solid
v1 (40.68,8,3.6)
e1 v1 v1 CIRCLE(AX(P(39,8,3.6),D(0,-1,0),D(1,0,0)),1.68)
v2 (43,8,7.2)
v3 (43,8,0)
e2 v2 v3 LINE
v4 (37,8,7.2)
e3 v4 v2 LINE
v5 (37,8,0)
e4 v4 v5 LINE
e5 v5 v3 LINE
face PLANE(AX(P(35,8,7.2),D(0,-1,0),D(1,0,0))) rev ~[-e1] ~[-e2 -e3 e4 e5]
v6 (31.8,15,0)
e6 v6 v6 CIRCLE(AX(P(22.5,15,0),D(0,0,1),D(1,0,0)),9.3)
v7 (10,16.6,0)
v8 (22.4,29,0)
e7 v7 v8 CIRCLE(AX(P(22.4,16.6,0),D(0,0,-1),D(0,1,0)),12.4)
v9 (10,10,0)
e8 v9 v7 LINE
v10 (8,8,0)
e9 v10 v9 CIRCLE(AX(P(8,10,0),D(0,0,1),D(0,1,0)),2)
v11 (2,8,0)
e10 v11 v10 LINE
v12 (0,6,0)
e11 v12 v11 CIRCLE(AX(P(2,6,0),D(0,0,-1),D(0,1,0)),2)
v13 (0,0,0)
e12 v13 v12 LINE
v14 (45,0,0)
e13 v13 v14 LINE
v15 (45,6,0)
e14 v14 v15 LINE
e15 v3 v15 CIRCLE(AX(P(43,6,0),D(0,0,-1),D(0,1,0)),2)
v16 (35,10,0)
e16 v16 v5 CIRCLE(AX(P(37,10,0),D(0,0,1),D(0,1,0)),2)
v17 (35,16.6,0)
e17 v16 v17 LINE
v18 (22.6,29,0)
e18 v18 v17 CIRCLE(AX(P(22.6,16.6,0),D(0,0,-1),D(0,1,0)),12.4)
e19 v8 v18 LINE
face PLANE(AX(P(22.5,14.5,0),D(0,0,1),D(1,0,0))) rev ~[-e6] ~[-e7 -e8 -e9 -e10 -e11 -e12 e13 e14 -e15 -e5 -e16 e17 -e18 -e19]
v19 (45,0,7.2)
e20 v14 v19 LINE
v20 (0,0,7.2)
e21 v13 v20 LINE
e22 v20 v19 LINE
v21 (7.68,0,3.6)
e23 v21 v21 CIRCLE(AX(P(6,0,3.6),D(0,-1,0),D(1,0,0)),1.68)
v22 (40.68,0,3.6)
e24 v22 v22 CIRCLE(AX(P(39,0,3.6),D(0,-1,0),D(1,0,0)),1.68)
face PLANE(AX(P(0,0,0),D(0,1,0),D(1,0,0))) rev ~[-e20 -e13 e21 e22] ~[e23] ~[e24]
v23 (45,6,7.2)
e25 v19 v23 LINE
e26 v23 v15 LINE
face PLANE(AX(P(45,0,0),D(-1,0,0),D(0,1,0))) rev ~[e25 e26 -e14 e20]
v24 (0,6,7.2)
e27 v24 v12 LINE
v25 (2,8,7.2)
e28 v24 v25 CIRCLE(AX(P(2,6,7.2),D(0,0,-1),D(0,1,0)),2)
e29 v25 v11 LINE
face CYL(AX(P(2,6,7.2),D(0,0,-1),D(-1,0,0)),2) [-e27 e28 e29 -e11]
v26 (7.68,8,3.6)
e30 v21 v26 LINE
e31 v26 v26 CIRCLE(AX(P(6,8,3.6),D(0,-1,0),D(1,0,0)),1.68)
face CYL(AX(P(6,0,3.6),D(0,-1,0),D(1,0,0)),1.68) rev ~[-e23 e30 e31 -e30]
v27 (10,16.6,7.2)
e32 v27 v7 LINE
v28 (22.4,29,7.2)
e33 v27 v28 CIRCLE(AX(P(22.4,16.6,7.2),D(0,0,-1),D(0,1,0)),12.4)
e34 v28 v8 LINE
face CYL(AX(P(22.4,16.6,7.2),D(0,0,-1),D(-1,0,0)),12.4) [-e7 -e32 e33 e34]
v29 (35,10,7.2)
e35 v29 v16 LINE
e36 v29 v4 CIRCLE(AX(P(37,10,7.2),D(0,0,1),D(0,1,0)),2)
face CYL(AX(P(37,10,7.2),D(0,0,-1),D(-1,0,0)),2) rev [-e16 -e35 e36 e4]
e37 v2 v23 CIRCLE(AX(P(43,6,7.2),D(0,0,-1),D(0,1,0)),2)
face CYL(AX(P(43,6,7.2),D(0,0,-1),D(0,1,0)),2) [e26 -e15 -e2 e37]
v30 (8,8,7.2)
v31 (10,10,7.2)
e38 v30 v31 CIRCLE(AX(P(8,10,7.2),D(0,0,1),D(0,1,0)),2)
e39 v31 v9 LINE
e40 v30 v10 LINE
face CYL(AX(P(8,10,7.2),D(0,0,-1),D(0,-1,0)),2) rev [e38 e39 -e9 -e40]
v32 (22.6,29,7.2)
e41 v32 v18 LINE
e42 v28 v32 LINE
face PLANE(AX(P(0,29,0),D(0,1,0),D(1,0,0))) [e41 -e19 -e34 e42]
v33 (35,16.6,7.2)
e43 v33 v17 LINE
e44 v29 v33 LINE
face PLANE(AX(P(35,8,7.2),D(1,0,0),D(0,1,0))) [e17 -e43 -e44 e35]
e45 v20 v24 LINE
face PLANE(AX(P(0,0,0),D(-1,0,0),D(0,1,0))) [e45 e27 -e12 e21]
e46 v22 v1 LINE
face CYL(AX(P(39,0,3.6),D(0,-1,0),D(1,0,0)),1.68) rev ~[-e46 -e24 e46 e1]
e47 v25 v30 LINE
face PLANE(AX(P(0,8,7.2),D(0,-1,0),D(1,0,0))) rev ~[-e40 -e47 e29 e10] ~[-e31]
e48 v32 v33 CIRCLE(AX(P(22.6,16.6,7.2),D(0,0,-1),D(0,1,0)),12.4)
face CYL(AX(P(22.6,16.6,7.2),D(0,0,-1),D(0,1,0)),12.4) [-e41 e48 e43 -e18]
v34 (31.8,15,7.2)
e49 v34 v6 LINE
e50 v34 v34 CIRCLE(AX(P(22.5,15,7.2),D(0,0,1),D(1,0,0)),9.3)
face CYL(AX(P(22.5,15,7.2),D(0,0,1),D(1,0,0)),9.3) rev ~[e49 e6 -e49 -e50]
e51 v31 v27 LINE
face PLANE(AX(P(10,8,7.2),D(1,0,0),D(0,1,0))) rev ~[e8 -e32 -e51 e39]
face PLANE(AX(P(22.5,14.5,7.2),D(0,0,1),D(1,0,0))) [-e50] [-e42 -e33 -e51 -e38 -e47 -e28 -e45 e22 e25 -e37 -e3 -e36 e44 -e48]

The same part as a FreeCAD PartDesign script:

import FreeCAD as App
import Part
import Sketcher

V = App.Vector


def edges_at(feature, points):
    """Names of the edges that pass closest to the given points."""
    edges = feature.Shape.Edges
    near = lambda p: min(range(len(edges)), key=lambda i: edges[i].distToShape(Part.Vertex(*p))[0])
    return sorted({f"Edge{near(p) + 1}" for p in points})

doc = App.newDocument("Part")
body = doc.addObject("PartDesign::Body", "Body")

# Sketch on XY plane
sketch1 = body.newObject("Sketcher::SketchObject", "Sketch")
sketch1.AttachmentSupport = (doc.getObject("XY_Plane"), [""])
sketch1.MapMode = "FlatFace"
sketch1.addGeometry([
    Part.LineSegment(V(0, 29, 0), V(0, 0, 0)),
    Part.LineSegment(V(0, 0, 0), V(45, 0, 0)),
    Part.LineSegment(V(45, 0, 0), V(45, 29, 0)),
    Part.LineSegment(V(45, 29, 0), V(0, 29, 0)),
], False)
sketch1.addConstraint([
    Sketcher.Constraint("Coincident", 0, 2, 1, 1),
    Sketcher.Constraint("Coincident", 1, 2, 2, 1),
    Sketcher.Constraint("Coincident", 2, 2, 3, 1),
    Sketcher.Constraint("Coincident", 3, 2, 0, 1),
    Sketcher.Constraint("Vertical", 0),
    Sketcher.Constraint("Horizontal", 1),
    Sketcher.Constraint("Vertical", 2),
    Sketcher.Constraint("Horizontal", 3),
    Sketcher.Constraint("Coincident", 0, 2, -1, 1),
    Sketcher.Constraint("DistanceX", 1, 1, 1, 2, 45.0),
    Sketcher.Constraint("DistanceY", 0, 2, 0, 1, 29.0),
])
pad1 = body.newObject("PartDesign::Pad", "Pad")
pad1.Profile = sketch1
pad1.Length = 7.2

# Sketch on XZ plane
sketch2 = body.newObject("Sketcher::SketchObject", "Sketch001")
sketch2.AttachmentSupport = (doc.getObject("XZ_Plane"), [""])
sketch2.MapMode = "FlatFace"
sketch2.addGeometry([
    Part.Circle(V(6, 3.6, 0), V(0, 0, 1), 1.7),
    Part.Circle(V(39, 3.6, 0), V(0, 0, 1), 1.7),
], False)
sketch2.addConstraint([
    Sketcher.Constraint("Equal", 0, 1),
    Sketcher.Constraint("Horizontal", 0, 3, 1, 3),
    Sketcher.Constraint("Diameter", 0, 3.36),
    Sketcher.Constraint("DistanceX", -1, 1, 0, 3, 6.0),
    Sketcher.Constraint("DistanceX", -1, 1, 1, 3, 39.0),
    Sketcher.Constraint("DistanceY", -1, 1, 0, 3, 3.6),
])
pocket1 = body.newObject("PartDesign::Pocket", "Pocket")
pocket1.Profile = sketch2
pocket1.Type = "ThroughAll"

# Sketch on XY plane
sketch3 = body.newObject("Sketcher::SketchObject", "Sketch002")
sketch3.AttachmentSupport = (doc.getObject("XY_Plane"), [""])
sketch3.MapMode = "FlatFace"
sketch3.AttachmentOffset = App.Placement(V(0, 0, 7.2), App.Rotation())
sketch3.addGeometry([
    Part.Circle(V(22, 15, 0), V(0, 0, 1), 9),  # 0
    Part.LineSegment(V(0, 29, 0), V(0, 8, 0)),  # 1
    Part.LineSegment(V(0, 8, 0), V(10, 8, 0)),  # 2
    Part.LineSegment(V(10, 8, 0), V(10, 29, 0)),  # 3
    Part.LineSegment(V(10, 29, 0), V(0, 29, 0)),  # 4
    Part.LineSegment(V(35, 29, 0), V(35, 8, 0)),  # 5
    Part.LineSegment(V(35, 8, 0), V(45, 8, 0)),  # 6
    Part.LineSegment(V(45, 8, 0), V(45, 29, 0)),  # 7
    Part.LineSegment(V(45, 29, 0), V(35, 29, 0)),  # 8
], False)
sketch3.addConstraint([
    Sketcher.Constraint("Coincident", 1, 2, 2, 1),
    Sketcher.Constraint("Coincident", 2, 2, 3, 1),
    Sketcher.Constraint("Coincident", 3, 2, 4, 1),
    Sketcher.Constraint("Coincident", 4, 2, 1, 1),
    Sketcher.Constraint("Coincident", 5, 2, 6, 1),
    Sketcher.Constraint("Coincident", 6, 2, 7, 1),
    Sketcher.Constraint("Coincident", 7, 2, 8, 1),
    Sketcher.Constraint("Coincident", 8, 2, 5, 1),
    Sketcher.Constraint("Vertical", 1),
    Sketcher.Constraint("Horizontal", 2),
    Sketcher.Constraint("Vertical", 3),
    Sketcher.Constraint("Horizontal", 4),
    Sketcher.Constraint("Vertical", 5),
    Sketcher.Constraint("Horizontal", 6),
    Sketcher.Constraint("Vertical", 7),
    Sketcher.Constraint("Horizontal", 8),
    Sketcher.Constraint("PointOnObject", 1, 2, -2),
    Sketcher.Constraint("Horizontal", 2, 2, 5, 2),
    Sketcher.Constraint("Horizontal", 4, 2, 7, 2),
    Sketcher.Constraint("Equal", 4, 6),
    Sketcher.Constraint("Diameter", 0, 18.6),
    Sketcher.Constraint("DistanceX", 2, 1, 2, 2, 10.0),
    Sketcher.Constraint("DistanceY", 1, 2, 1, 1, 21.0),
    Sketcher.Constraint("DistanceY", -1, 1, 0, 3, 15.0),
    Sketcher.Constraint("DistanceY", -1, 1, 1, 2, 8.0),
    Sketcher.Constraint("DistanceX", -1, 1, 5, 2, 35.0),
    Sketcher.Constraint("DistanceX", -1, 1, 0, 3, 22.5),
])
pocket2 = body.newObject("PartDesign::Pocket", "Pocket001")
pocket2.Profile = sketch3
pocket2.Length = 8
doc.recompute()

fillet = body.newObject("PartDesign::Fillet", "Fillet")
fillet.Base = (pocket2, edges_at(pocket2, [
    (45, 8, 3.6),
    (35, 8, 3.6),
    (10, 8, 3.6),
    (0, 8, 3.6),
]))
fillet.Radius = 2
doc.recompute()

fillet2 = body.newObject("PartDesign::Fillet", "Fillet001")
fillet2.Base = (fillet, edges_at(fillet, [(10, 29, 3.6), (35, 29, 3.6)]))
fillet2.Radius = 12.4

doc.recompute()
